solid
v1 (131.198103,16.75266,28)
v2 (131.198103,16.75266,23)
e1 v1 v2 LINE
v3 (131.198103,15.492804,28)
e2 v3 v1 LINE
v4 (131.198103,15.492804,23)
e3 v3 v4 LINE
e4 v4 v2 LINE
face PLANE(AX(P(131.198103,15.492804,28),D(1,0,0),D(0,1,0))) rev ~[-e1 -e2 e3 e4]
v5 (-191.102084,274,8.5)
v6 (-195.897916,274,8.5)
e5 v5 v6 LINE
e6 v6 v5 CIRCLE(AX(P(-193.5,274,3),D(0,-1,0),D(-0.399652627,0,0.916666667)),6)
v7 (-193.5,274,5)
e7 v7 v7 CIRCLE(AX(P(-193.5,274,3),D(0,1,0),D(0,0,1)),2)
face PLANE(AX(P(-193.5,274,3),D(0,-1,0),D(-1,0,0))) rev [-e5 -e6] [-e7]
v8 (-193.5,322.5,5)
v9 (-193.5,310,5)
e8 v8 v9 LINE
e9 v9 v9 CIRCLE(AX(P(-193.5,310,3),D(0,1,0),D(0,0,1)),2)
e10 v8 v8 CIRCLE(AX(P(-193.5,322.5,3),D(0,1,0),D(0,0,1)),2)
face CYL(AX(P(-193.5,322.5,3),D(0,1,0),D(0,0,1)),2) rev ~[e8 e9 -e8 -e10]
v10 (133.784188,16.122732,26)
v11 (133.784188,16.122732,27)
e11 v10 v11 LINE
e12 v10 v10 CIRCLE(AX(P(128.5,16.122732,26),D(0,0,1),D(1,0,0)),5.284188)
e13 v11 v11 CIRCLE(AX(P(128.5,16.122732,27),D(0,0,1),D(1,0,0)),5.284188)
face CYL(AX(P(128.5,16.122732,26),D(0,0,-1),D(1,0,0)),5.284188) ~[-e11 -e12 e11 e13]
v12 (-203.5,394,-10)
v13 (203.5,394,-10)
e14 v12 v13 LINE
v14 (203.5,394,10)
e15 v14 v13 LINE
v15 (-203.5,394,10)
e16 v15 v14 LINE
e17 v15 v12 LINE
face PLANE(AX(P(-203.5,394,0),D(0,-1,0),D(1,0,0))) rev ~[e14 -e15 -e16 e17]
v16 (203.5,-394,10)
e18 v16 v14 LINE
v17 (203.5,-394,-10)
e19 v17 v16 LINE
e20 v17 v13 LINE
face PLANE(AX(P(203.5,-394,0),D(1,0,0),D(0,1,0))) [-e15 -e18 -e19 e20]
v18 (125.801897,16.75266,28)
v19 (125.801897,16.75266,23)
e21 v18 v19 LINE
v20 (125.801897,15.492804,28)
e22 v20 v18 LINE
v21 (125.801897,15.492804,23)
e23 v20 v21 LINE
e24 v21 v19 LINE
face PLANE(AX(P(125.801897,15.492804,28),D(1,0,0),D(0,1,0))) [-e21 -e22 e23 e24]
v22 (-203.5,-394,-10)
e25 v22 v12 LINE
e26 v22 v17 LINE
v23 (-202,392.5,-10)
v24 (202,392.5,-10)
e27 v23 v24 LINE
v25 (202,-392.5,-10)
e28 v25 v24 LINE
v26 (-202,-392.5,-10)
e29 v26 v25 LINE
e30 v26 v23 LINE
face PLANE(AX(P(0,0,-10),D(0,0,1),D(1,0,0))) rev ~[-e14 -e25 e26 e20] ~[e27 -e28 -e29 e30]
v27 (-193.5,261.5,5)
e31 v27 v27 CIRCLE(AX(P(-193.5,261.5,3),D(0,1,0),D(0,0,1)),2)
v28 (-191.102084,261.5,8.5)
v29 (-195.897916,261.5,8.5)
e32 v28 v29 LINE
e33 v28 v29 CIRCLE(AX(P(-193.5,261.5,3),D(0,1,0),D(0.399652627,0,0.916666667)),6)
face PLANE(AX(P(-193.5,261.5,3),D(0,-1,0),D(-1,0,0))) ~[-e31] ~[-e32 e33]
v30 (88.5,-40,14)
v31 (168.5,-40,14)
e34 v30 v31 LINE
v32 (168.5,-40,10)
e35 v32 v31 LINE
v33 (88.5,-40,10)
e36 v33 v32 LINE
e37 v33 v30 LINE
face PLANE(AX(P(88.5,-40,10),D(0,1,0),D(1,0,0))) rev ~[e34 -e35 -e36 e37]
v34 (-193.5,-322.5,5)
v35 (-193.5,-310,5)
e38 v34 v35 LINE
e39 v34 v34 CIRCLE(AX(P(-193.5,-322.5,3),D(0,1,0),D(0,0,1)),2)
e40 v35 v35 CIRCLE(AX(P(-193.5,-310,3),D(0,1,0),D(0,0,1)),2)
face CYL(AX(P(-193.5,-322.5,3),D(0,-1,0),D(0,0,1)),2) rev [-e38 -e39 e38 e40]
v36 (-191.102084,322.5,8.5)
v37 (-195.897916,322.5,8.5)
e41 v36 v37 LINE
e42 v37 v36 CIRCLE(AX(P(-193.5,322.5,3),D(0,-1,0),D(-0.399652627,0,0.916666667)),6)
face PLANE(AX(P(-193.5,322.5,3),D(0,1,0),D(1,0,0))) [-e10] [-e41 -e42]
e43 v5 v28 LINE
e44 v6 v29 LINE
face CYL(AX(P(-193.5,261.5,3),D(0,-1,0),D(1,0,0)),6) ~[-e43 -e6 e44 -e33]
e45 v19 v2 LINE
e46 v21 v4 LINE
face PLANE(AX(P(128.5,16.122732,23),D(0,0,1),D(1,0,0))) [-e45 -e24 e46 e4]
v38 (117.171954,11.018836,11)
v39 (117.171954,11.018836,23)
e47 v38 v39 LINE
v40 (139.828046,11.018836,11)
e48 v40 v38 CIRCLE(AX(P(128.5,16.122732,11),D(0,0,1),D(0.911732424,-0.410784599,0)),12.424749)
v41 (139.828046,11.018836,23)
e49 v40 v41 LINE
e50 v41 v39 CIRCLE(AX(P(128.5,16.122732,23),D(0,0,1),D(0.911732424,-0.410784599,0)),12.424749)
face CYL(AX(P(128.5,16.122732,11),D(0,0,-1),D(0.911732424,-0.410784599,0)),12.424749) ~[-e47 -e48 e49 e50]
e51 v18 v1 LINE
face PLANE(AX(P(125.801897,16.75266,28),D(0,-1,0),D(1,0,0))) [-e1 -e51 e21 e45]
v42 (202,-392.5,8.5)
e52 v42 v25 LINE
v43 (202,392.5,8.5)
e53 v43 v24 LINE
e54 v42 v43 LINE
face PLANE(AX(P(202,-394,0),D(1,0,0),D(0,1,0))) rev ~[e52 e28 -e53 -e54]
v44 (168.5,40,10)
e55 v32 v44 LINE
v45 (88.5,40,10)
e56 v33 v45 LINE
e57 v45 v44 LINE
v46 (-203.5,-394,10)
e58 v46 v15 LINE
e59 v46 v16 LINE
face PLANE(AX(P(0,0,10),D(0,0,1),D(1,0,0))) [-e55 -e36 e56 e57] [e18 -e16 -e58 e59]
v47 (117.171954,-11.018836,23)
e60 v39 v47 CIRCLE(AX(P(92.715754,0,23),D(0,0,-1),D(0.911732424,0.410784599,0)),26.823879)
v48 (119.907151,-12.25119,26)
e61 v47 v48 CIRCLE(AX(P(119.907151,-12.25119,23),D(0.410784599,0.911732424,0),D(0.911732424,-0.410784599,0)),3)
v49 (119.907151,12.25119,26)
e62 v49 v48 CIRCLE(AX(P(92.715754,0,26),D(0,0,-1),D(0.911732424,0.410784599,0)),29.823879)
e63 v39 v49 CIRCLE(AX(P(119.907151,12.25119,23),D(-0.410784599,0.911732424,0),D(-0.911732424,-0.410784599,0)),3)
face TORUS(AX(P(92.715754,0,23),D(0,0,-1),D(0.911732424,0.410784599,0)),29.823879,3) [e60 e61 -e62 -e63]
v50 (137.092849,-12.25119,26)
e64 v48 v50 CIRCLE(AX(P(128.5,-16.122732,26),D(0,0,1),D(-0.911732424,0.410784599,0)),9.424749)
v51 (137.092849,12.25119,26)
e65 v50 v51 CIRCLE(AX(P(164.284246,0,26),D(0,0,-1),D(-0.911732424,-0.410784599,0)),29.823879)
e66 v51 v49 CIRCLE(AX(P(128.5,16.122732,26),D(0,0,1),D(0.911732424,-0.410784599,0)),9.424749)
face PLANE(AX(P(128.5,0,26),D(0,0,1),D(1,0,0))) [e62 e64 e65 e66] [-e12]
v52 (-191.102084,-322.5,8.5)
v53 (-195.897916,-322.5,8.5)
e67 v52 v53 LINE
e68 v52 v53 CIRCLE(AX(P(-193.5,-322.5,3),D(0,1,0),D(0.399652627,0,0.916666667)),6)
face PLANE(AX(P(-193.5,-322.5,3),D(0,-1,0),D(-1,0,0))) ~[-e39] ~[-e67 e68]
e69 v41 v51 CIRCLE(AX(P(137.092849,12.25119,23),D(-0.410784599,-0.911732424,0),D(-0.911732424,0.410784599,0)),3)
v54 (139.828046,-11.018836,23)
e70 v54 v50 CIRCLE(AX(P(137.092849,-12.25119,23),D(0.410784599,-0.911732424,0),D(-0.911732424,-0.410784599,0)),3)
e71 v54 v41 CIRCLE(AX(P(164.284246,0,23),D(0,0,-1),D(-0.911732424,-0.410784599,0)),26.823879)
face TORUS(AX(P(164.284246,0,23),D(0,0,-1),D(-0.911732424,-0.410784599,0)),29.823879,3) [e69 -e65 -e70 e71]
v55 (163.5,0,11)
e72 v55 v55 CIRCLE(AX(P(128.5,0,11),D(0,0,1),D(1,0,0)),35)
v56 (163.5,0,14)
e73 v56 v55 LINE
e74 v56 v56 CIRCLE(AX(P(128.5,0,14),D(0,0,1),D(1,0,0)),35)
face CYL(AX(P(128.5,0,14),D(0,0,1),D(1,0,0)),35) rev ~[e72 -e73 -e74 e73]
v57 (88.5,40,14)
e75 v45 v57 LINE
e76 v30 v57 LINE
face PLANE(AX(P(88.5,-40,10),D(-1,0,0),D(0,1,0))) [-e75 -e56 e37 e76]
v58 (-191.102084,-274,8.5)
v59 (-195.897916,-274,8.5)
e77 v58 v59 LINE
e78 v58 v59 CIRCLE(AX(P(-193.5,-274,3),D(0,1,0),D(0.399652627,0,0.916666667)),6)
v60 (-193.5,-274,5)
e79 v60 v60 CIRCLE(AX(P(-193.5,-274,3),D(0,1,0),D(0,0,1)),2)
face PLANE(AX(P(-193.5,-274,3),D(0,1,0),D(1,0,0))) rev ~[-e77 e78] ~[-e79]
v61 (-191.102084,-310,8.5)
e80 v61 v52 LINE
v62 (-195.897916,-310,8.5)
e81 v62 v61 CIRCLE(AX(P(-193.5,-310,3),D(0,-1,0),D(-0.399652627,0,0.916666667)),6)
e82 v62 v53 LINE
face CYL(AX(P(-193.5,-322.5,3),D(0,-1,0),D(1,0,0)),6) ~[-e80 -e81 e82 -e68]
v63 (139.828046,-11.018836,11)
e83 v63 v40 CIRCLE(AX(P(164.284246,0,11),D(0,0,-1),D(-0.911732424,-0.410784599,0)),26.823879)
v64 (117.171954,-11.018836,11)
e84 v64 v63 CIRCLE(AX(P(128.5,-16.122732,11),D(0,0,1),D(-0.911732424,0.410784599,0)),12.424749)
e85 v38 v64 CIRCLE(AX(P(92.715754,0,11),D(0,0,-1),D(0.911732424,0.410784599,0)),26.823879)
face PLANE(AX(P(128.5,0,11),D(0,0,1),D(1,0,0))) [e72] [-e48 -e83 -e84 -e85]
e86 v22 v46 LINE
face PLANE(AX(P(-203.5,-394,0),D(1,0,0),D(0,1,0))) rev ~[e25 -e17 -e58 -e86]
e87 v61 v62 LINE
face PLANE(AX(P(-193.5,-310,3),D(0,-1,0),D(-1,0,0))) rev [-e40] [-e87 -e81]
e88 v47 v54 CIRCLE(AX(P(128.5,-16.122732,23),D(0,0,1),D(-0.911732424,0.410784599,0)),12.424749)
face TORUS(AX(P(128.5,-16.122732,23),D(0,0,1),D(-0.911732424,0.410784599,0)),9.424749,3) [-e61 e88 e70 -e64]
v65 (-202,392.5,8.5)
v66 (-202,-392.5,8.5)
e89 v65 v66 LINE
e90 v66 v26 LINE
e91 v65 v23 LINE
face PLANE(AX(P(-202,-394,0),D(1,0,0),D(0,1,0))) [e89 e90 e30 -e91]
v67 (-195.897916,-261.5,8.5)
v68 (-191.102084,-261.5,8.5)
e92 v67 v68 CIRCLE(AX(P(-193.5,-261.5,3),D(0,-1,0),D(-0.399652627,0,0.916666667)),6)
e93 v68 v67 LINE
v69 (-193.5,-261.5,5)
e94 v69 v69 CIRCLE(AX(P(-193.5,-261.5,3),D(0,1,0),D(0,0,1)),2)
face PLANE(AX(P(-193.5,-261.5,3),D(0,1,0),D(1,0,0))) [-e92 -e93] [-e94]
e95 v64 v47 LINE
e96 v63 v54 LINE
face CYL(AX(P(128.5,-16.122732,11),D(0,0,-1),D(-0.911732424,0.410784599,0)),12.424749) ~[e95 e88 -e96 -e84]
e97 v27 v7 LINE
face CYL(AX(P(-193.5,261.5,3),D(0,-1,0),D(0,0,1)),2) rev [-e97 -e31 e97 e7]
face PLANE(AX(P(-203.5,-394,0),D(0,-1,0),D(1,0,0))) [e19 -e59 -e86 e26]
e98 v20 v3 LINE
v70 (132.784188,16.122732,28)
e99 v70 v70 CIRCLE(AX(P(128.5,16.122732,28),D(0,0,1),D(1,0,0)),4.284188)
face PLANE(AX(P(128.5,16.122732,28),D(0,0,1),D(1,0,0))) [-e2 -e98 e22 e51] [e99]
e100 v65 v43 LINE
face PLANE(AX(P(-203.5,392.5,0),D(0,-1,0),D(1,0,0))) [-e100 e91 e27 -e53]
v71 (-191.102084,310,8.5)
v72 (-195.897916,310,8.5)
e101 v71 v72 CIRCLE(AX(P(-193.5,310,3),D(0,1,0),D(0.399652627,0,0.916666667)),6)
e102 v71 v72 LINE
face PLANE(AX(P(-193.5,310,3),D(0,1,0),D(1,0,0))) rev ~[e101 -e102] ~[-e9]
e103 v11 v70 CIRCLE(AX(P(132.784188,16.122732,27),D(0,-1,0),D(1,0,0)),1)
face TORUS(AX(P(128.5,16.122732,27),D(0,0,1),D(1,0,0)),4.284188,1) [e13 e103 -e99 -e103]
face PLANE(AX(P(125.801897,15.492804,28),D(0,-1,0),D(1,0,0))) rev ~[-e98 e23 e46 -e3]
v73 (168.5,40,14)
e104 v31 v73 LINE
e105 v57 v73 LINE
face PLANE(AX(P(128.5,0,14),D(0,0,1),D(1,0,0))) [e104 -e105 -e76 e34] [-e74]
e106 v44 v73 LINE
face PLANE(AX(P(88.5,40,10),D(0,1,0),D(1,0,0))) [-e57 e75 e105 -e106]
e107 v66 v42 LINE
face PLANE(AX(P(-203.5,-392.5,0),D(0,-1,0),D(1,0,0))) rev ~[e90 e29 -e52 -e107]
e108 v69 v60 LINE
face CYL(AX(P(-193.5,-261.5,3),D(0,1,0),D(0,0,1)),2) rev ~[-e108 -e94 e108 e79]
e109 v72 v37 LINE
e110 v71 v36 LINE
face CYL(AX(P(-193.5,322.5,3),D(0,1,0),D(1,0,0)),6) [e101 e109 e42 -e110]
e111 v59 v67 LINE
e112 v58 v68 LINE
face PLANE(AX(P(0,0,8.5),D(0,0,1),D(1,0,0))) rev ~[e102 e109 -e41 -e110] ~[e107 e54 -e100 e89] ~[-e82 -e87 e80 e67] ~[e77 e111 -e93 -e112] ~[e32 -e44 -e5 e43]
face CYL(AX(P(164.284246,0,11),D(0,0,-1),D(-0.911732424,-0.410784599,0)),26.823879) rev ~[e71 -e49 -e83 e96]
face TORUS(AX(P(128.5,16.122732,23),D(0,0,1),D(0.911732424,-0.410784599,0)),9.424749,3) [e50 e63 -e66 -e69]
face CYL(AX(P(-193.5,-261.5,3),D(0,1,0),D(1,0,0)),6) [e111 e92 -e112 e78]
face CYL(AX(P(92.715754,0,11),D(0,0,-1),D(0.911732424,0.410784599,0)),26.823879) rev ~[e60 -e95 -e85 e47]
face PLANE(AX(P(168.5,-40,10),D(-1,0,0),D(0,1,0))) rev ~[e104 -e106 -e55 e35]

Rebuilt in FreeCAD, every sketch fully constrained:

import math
import FreeCAD as App
import Part
import Sketcher


def edges_at(feature, points):
    """Names of the edges that pass closest to the given points."""
    edges = feature.Shape.Edges
    near = lambda p: min(range(len(edges)), key=lambda i: edges[i].distToShape(Part.Vertex(*p))[0])
    return sorted({f"Edge{near(p) + 1}" for p in points})


def faces_at(feature, points):
    """Names of the faces that lie closest to the given points."""
    faces = feature.Shape.Faces
    near = lambda p: min(range(len(faces)), key=lambda i: faces[i].distToShape(Part.Vertex(*p))[0])
    return sorted({f"Face{near(p) + 1}" for p in points})

doc = App.newDocument("Part")
body = doc.addObject("PartDesign::Body", "Body")

sketch1 = body.newObject("Sketcher::SketchObject", "Sketch")
sketch1.AttachmentSupport = (doc.getObject("XY_Plane"), [""])
sketch1.MapMode = "FlatFace"
sketch1.addGeometry([
    Part.LineSegment(App.Vector(-203.5, 394, 0), App.Vector(-203.5, -394, 0)),
    Part.LineSegment(App.Vector(-203.5, -394, 0), App.Vector(203.5, -394, 0)),
    Part.LineSegment(App.Vector(203.5, -394, 0), App.Vector(203.5, 394, 0)),
    Part.LineSegment(App.Vector(203.5, 394, 0), App.Vector(-203.5, 394, 0)),
], False)
sketch1.addConstraint([
    Sketcher.Constraint("Coincident", 0, 2, 1, 1),
    Sketcher.Constraint("Coincident", 1, 2, 2, 1),
    Sketcher.Constraint("Coincident", 2, 2, 3, 1),
    Sketcher.Constraint("Coincident", 3, 2, 0, 1),
    Sketcher.Constraint("Vertical", 0),
    Sketcher.Constraint("Horizontal", 1),
    Sketcher.Constraint("Vertical", 2),
    Sketcher.Constraint("Horizontal", 3),
    Sketcher.Constraint("Symmetric", 0, 2, 2, 2, -1, 1),
    Sketcher.Constraint("DistanceX", 1, 1, 1, 2, 407.0),
    Sketcher.Constraint("DistanceY", 0, 2, 0, 1, 788.0),
])
pad1 = body.newObject("PartDesign::Pad", "Pad")
pad1.Profile = sketch1
pad1.Length = 20
pad1.Midplane = True
doc.recompute()

thickness = body.newObject("PartDesign::Thickness", "Thickness")
thickness.Base = (pad1, faces_at(pad1, [(0, 0, -10)]))
thickness.Value = 1.5
thickness.Reversed = True
thickness.Join = "Intersection"

sketch2 = body.newObject("Sketcher::SketchObject", "Sketch001")
sketch2.AttachmentSupport = (doc.getObject("XY_Plane"), [""])
sketch2.MapMode = "FlatFace"
sketch2.AttachmentOffset = App.Placement(App.Vector(0, 0, 10), App.Rotation())
sketch2.addGeometry([
    Part.LineSegment(App.Vector(88.5, 40, 0), App.Vector(88.5, -40, 0)),
    Part.LineSegment(App.Vector(88.5, -40, 0), App.Vector(168.5, -40, 0)),
    Part.LineSegment(App.Vector(168.5, -40, 0), App.Vector(168.5, 40, 0)),
    Part.LineSegment(App.Vector(168.5, 40, 0), App.Vector(88.5, 40, 0)),
], False)
sketch2.addConstraint([
    Sketcher.Constraint("Coincident", 0, 2, 1, 1),
    Sketcher.Constraint("Coincident", 1, 2, 2, 1),
    Sketcher.Constraint("Coincident", 2, 2, 3, 1),
    Sketcher.Constraint("Coincident", 3, 2, 0, 1),
    Sketcher.Constraint("Vertical", 0),
    Sketcher.Constraint("Horizontal", 1),
    Sketcher.Constraint("Vertical", 2),
    Sketcher.Constraint("Horizontal", 3),
    Sketcher.Constraint("Equal", 3, 0),
    Sketcher.Constraint("DistanceX", 1, 1, 1, 2, 80.0),
    Sketcher.Constraint("DistanceY", 0, 2, -1, 1, 40.0),
    Sketcher.Constraint("DistanceX", -1, 1, 0, 2, 88.5),
])
pad2 = body.newObject("PartDesign::Pad", "Pad001")
pad2.Profile = sketch2
pad2.Length = 4

sketch3 = body.newObject("Sketcher::SketchObject", "Sketch002")
sketch3.AttachmentSupport = (doc.getObject("XY_Plane"), [""])
sketch3.MapMode = "FlatFace"
sketch3.AttachmentOffset = App.Placement(App.Vector(0, 0, 14), App.Rotation())
sketch3.addGeometry(Part.Circle(App.Vector(128.5, 0, 0), App.Vector(0, 0, 1), 35), False)
sketch3.addConstraint([
    Sketcher.Constraint("PointOnObject", 0, 3, -1),
    Sketcher.Constraint("Diameter", 0, 70.0),
    Sketcher.Constraint("DistanceX", -1, 1, 0, 3, 128.5),
])
pocket1 = body.newObject("PartDesign::Pocket", "Pocket")
pocket1.Profile = sketch3
pocket1.Length = 3

sketch4 = body.newObject("Sketcher::SketchObject", "Sketch003")
sketch4.AttachmentSupport = (doc.getObject("XY_Plane"), [""])
sketch4.MapMode = "FlatFace"
sketch4.AttachmentOffset = App.Placement(App.Vector(0, 0, 11), App.Rotation())
sketch4.addGeometry([
    Part.ArcOfCircle(Part.Circle(App.Vector(128.5, 16.122732, 0), App.Vector(0, 0, 1), 12.424749), math.radians(-24.254132), math.radians(204.254132)),
    Part.ArcOfCircle(Part.Circle(App.Vector(92.715754, 0, 0), App.Vector(0, 0, 1), 26.823879), math.radians(-24.254132), math.radians(24.254132)),
    Part.ArcOfCircle(Part.Circle(App.Vector(128.5, -16.122732, 0), App.Vector(0, 0, 1), 12.424749), math.radians(155.745868), math.radians(384.254132)),
    Part.ArcOfCircle(Part.Circle(App.Vector(164.284246, 0, 0), App.Vector(0, 0, 1), 26.823879), math.radians(155.745868), math.radians(204.254132)),
], False)
sketch4.addConstraint([
    Sketcher.Constraint("Tangent", 0, 2, 1, 2),
    Sketcher.Constraint("Tangent", 1, 1, 2, 1),
    Sketcher.Constraint("Tangent", 2, 2, 3, 2),
    Sketcher.Constraint("Tangent", 3, 1, 0, 1),
    Sketcher.Constraint("Equal", 0, 2),
    Sketcher.Constraint("Equal", 1, 3),
    Sketcher.Constraint("Symmetric", 0, 3, 2, 3, -1),
    Sketcher.Constraint("DistanceX", -1, 1, 0, 3, 128.5),
    Sketcher.Constraint("Radius", 0, 12.424749),
    Sketcher.Constraint("Radius", 1, 26.823879),
    Sketcher.Constraint("DistanceX", 1, 3, 0, 2, 24.4562),
])
pad3 = body.newObject("PartDesign::Pad", "Pad002")
pad3.Profile = sketch4
pad3.Length = 15

sketch5 = body.newObject("Sketcher::SketchObject", "Sketch004")
sketch5.AttachmentSupport = (doc.getObject("XY_Plane"), [""])
sketch5.MapMode = "FlatFace"
sketch5.AttachmentOffset = App.Placement(App.Vector(0, 0, 26), App.Rotation())
sketch5.addGeometry(Part.Circle(App.Vector(128.5, 16.122732, 0), App.Vector(0, 0, 1), 5.284188), False)
sketch5.addConstraint([
    Sketcher.Constraint("DistanceX", -1, 1, 0, 3, 128.5),
    Sketcher.Constraint("Diameter", 0, 10.568377),
    Sketcher.Constraint("DistanceY", -1, 1, 0, 3, 16.122732),
])
pad4 = body.newObject("PartDesign::Pad", "Pad003")
pad4.Profile = sketch5
pad4.Length = 2
doc.recompute()

fillet = body.newObject("PartDesign::Fillet", "Fillet")
fillet.Base = (pad4, edges_at(pad4, [
    (137.46, 0, 26),
    (128.5, 28.547, 26),
    (119.54, 0, 26),
    (128.5, -28.547, 26),
]))
fillet.Radius = 3
doc.recompute()

fillet2 = body.newObject("PartDesign::Fillet", "Fillet001")
fillet2.Base = (fillet, edges_at(fillet, [(123.216, 16.123, 28)]))
fillet2.Radius = 1

sketch6 = body.newObject("Sketcher::SketchObject", "Sketch005")
sketch6.AttachmentSupport = (doc.getObject("XY_Plane"), [""])
sketch6.MapMode = "FlatFace"
sketch6.AttachmentOffset = App.Placement(App.Vector(0, 0, 28), App.Rotation())
sketch6.addGeometry([
    Part.LineSegment(App.Vector(125.801897, 16.75266, 0), App.Vector(125.801897, 15.492804, 0)),
    Part.LineSegment(App.Vector(125.801897, 15.492804, 0), App.Vector(131.198103, 15.492804, 0)),
    Part.LineSegment(App.Vector(131.198103, 15.492804, 0), App.Vector(131.198103, 16.75266, 0)),
    Part.LineSegment(App.Vector(131.198103, 16.75266, 0), App.Vector(125.801897, 16.75266, 0)),
], False)
sketch6.addConstraint([
    Sketcher.Constraint("Coincident", 0, 2, 1, 1),
    Sketcher.Constraint("Coincident", 1, 2, 2, 1),
    Sketcher.Constraint("Coincident", 2, 2, 3, 1),
    Sketcher.Constraint("Coincident", 3, 2, 0, 1),
    Sketcher.Constraint("Vertical", 0),
    Sketcher.Constraint("Horizontal", 1),
    Sketcher.Constraint("Vertical", 2),
    Sketcher.Constraint("Horizontal", 3),
    Sketcher.Constraint("DistanceX", 1, 1, 1, 2, 5.396205),
    Sketcher.Constraint("DistanceY", 0, 2, 0, 1, 1.259856),
    Sketcher.Constraint("DistanceY", -1, 1, 2, 2, 16.75266),
    Sketcher.Constraint("DistanceX", -1, 1, 0, 2, 125.801897),
])
pocket2 = body.newObject("PartDesign::Pocket", "Pocket001")
pocket2.Profile = sketch6
pocket2.Length = 5

sketch7 = body.newObject("Sketcher::SketchObject", "Sketch006")
sketch7.AttachmentSupport = (doc.getObject("XZ_Plane"), [""])
sketch7.MapMode = "FlatFace"
sketch7.AttachmentOffset = App.Placement(App.Vector(0, 0, -322.5), App.Rotation())
sketch7.addGeometry([
    Part.Circle(App.Vector(-193.5, 3, 0), App.Vector(0, 0, 1), 6),
    Part.Circle(App.Vector(-193.5, 3, 0), App.Vector(0, 0, 1), 2),
], False)
sketch7.addConstraint([
    Sketcher.Constraint("Coincident", 1, 3, 0, 3),
    Sketcher.Constraint("Diameter", 0, 12.0),
    Sketcher.Constraint("Diameter", 1, 4.0),
    Sketcher.Constraint("DistanceY", -1, 1, 0, 3, 3.0),
    Sketcher.Constraint("DistanceX", 0, 3, -1, 1, 193.5),
])
pad5 = body.newObject("PartDesign::Pad", "Pad004")
pad5.Profile = sketch7
pad5.Length = 12.5
doc.recompute()

datumplane = body.newObject("PartDesign::Plane", "DatumPlane")
datumplane.AttachmentSupport = (doc.getObject("XZ_Plane"), [""])
datumplane.MapMode = "FlatFace"
datumplane.AttachmentOffset = App.Placement(App.Vector(0, 0, -292), App.Rotation())
mirrored = body.newObject("PartDesign::Mirrored", "Mirrored")
mirrored.Originals = [pad5]
mirrored.MirrorPlane = (datumplane, [""])
body.Tip = mirrored
doc.recompute()

mirrored2 = body.newObject("PartDesign::Mirrored", "Mirrored001")
mirrored2.Originals = [pad5]
mirrored2.MirrorPlane = (doc.getObject("XZ_Plane"), [""])
body.Tip = mirrored2

sketch8 = body.newObject("Sketcher::SketchObject", "Sketch007")
sketch8.AttachmentSupport = (doc.getObject("XZ_Plane"), [""])
sketch8.MapMode = "FlatFace"
sketch8.AttachmentOffset = App.Placement(App.Vector(0, 0, 261.5), App.Rotation())
sketch8.addGeometry([
    Part.Circle(App.Vector(-193.5, 3, 0), App.Vector(0, 0, 1), 6),
    Part.Circle(App.Vector(-193.5, 3, 0), App.Vector(0, 0, 1), 2),
], False)
sketch8.addConstraint([
    Sketcher.Constraint("Coincident", 1, 3, 0, 3),
    Sketcher.Constraint("Diameter", 0, 12.0),
    Sketcher.Constraint("Diameter", 1, 4.0),
    Sketcher.Constraint("DistanceY", -1, 1, 0, 3, 3.0),
    Sketcher.Constraint("DistanceX", 0, 3, -1, 1, 193.5),
])
pad6 = body.newObject("PartDesign::Pad", "Pad005")
pad6.Profile = sketch8
pad6.Length = 12.5

doc.recompute()
